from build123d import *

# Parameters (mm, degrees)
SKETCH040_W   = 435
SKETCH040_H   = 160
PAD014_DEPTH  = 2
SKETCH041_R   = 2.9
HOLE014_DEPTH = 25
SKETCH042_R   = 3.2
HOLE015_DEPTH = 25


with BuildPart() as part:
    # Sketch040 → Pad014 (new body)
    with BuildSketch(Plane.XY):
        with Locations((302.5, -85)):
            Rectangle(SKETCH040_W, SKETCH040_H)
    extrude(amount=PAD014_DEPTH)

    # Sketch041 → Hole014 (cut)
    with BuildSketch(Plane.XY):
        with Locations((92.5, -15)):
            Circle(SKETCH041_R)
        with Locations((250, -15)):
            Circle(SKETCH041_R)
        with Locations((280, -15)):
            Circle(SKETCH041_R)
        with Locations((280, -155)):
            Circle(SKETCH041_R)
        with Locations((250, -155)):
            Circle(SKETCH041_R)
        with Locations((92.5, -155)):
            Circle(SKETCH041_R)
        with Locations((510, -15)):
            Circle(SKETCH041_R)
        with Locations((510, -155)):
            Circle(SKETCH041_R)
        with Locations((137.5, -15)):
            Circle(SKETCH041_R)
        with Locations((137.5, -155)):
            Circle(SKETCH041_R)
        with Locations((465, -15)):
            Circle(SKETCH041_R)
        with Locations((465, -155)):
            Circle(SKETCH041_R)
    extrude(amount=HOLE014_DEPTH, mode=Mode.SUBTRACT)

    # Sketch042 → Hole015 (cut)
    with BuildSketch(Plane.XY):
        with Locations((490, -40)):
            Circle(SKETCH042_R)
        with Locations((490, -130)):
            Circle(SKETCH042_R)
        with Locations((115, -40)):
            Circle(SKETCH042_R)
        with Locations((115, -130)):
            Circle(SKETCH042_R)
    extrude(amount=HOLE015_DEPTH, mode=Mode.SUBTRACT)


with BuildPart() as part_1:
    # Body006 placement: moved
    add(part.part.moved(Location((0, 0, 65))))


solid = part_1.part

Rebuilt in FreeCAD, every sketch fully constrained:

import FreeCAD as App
import Part
import Sketcher


def add_polygon(sketch, points):
    """Adds a closed chain of lines whose ends are joined by coincident constraints."""
    first, n = sketch.GeometryCount, len(points)
    for a, b in zip(points, points[1:] + points[:1]):
        sketch.addGeometry(Part.LineSegment(App.Vector(*a, 0), App.Vector(*b, 0)), False)
    for i in range(n):
        sketch.addConstraint(Sketcher.Constraint("Coincident", first + i, 2, first + (i + 1) % n, 1))

doc = App.newDocument("Part")
body = doc.addObject("PartDesign::Body", "Body")

# Sketch on XY plane
sketch1 = body.newObject("Sketcher::SketchObject", "Sketch")
sketch1.AttachmentSupport = (doc.getObject("XY_Plane"), [""])
sketch1.MapMode = "FlatFace"
add_polygon(sketch1, [(85, -5), (85, -165), (520, -165), (520, -5)])  # lines 0-3
sketch1.addConstraint([
    Sketcher.Constraint("Vertical", 0),
    Sketcher.Constraint("Horizontal", 1),
    Sketcher.Constraint("Vertical", 2),
    Sketcher.Constraint("Horizontal", 3),
    Sketcher.Constraint("DistanceX", 1, 1, 1, 2, 435.0),
    Sketcher.Constraint("DistanceY", 0, 2, 0, 1, 160.0),
    Sketcher.Constraint("DistanceX", -1, 1, 0, 2, 85.0),
    Sketcher.Constraint("DistanceY", 0, 2, -1, 1, 165.0),
])
pad1 = body.newObject("PartDesign::Pad", "Pad")
pad1.Profile = sketch1
pad1.Length = 2

# Sketch on XY plane
sketch2 = body.newObject("Sketcher::SketchObject", "Sketch001")
sketch2.AttachmentSupport = (doc.getObject("XY_Plane"), [""])
sketch2.MapMode = "FlatFace"
sketch2.addGeometry([
    Part.Circle(App.Vector(92.5, -15, 0), App.Vector(0, 0, 1), 2.9),  # 0
    Part.Circle(App.Vector(250, -15, 0), App.Vector(0, 0, 1), 2.9),  # 1
    Part.Circle(App.Vector(280, -15, 0), App.Vector(0, 0, 1), 2.9),  # 2
    Part.Circle(App.Vector(280, -155, 0), App.Vector(0, 0, 1), 2.9),  # 3
    Part.Circle(App.Vector(250, -155, 0), App.Vector(0, 0, 1), 2.9),  # 4
    Part.Circle(App.Vector(92.5, -155, 0), App.Vector(0, 0, 1), 2.9),  # 5
    Part.Circle(App.Vector(510, -15, 0), App.Vector(0, 0, 1), 2.9),  # 6
    Part.Circle(App.Vector(510, -155, 0), App.Vector(0, 0, 1), 2.9),  # 7
    Part.Circle(App.Vector(137.5, -15, 0), App.Vector(0, 0, 1), 2.9),  # 8
    Part.Circle(App.Vector(137.5, -155, 0), App.Vector(0, 0, 1), 2.9),  # 9
    Part.Circle(App.Vector(465, -15, 0), App.Vector(0, 0, 1), 2.9),  # 10
    Part.Circle(App.Vector(465, -155, 0), App.Vector(0, 0, 1), 2.9),  # 11
], False)
sketch2.addConstraint([
    Sketcher.Constraint("Equal", 0, 1),
    Sketcher.Constraint("Equal", 1, 2),
    Sketcher.Constraint("Equal", 2, 3),
    Sketcher.Constraint("Equal", 3, 4),
    Sketcher.Constraint("Equal", 4, 5),
    Sketcher.Constraint("Equal", 5, 6),
    Sketcher.Constraint("Equal", 6, 7),
    Sketcher.Constraint("Equal", 7, 8),
    Sketcher.Constraint("Equal", 8, 9),
    Sketcher.Constraint("Equal", 9, 10),
    Sketcher.Constraint("Equal", 10, 11),
    Sketcher.Constraint("Horizontal", 0, 3, 1, 3),
    Sketcher.Constraint("Horizontal", 1, 3, 2, 3),
    Sketcher.Constraint("Horizontal", 3, 3, 4, 3),
    Sketcher.Constraint("Horizontal", 4, 3, 5, 3),
    Sketcher.Constraint("Horizontal", 2, 3, 6, 3),
    Sketcher.Constraint("Horizontal", 5, 3, 7, 3),
    Sketcher.Constraint("Horizontal", 6, 3, 8, 3),
    Sketcher.Constraint("Horizontal", 7, 3, 9, 3),
    Sketcher.Constraint("Horizontal", 8, 3, 10, 3),
    Sketcher.Constraint("Horizontal", 9, 3, 11, 3),
    Sketcher.Constraint("Vertical", 2, 3, 3, 3),
    Sketcher.Constraint("Vertical", 1, 3, 4, 3),
    Sketcher.Constraint("Vertical", 0, 3, 5, 3),
    Sketcher.Constraint("Vertical", 6, 3, 7, 3),
    Sketcher.Constraint("Vertical", 8, 3, 9, 3),
    Sketcher.Constraint("Vertical", 10, 3, 11, 3),
    Sketcher.Constraint("Diameter", 0, 5.8),
    Sketcher.Constraint("DistanceY", 0, 3, -1, 1, 15.0),
    Sketcher.Constraint("DistanceX", -1, 1, 1, 3, 250.0),
    Sketcher.Constraint("DistanceX", -1, 1, 2, 3, 280.0),
    Sketcher.Constraint("DistanceY", 3, 3, -1, 1, 155.0),
    Sketcher.Constraint("DistanceX", -1, 1, 6, 3, 510.0),
    Sketcher.Constraint("DistanceX", -1, 1, 10, 3, 465.0),
    Sketcher.Constraint("DistanceX", 0, 3, 8, 3, 45.0),
    Sketcher.Constraint("DistanceX", -1, 1, 0, 3, 92.5),
])
pocket1 = body.newObject("PartDesign::Pocket", "Pocket")
pocket1.Profile = sketch2
pocket1.Length = 25
pocket1.Reversed = True

# Sketch on XY plane
sketch3 = body.newObject("Sketcher::SketchObject", "Sketch002")
sketch3.AttachmentSupport = (doc.getObject("XY_Plane"), [""])
sketch3.MapMode = "FlatFace"
sketch3.addGeometry([
    Part.Circle(App.Vector(490, -40, 0), App.Vector(0, 0, 1), 3.2),
    Part.Circle(App.Vector(490, -130, 0), App.Vector(0, 0, 1), 3.2),
    Part.Circle(App.Vector(115, -40, 0), App.Vector(0, 0, 1), 3.2),
    Part.Circle(App.Vector(115, -130, 0), App.Vector(0, 0, 1), 3.2),
], False)
sketch3.addConstraint([
    Sketcher.Constraint("Equal", 0, 1),
    Sketcher.Constraint("Equal", 1, 2),
    Sketcher.Constraint("Equal", 2, 3),
    Sketcher.Constraint("Horizontal", 0, 3, 2, 3),
    Sketcher.Constraint("Horizontal", 1, 3, 3, 3),
    Sketcher.Constraint("Vertical", 0, 3, 1, 3),
    Sketcher.Constraint("Vertical", 2, 3, 3, 3),
    Sketcher.Constraint("Diameter", 0, 6.4),
    Sketcher.Constraint("DistanceX", -1, 1, 0, 3, 490.0),
    Sketcher.Constraint("DistanceY", 0, 3, -1, 1, 40.0),
    Sketcher.Constraint("DistanceY", 1, 3, -1, 1, 130.0),
    Sketcher.Constraint("DistanceX", -1, 1, 2, 3, 115.0),
])
pocket2 = body.newObject("PartDesign::Pocket", "Pocket001")
pocket2.Profile = sketch3
pocket2.Length = 25
pocket2.Reversed = True
body2 = doc.addObject("PartDesign::Body", "Body001")
doc.recompute()

body.Placement = App.Placement(App.Vector(0, 0, 65), App.Rotation(App.Vector(0, 0, 1), 0))
boolean = body2.newObject("PartDesign::Boolean", "Boolean")
boolean.Type = "Fuse"
boolean.addObjects([body])

doc.recompute()
